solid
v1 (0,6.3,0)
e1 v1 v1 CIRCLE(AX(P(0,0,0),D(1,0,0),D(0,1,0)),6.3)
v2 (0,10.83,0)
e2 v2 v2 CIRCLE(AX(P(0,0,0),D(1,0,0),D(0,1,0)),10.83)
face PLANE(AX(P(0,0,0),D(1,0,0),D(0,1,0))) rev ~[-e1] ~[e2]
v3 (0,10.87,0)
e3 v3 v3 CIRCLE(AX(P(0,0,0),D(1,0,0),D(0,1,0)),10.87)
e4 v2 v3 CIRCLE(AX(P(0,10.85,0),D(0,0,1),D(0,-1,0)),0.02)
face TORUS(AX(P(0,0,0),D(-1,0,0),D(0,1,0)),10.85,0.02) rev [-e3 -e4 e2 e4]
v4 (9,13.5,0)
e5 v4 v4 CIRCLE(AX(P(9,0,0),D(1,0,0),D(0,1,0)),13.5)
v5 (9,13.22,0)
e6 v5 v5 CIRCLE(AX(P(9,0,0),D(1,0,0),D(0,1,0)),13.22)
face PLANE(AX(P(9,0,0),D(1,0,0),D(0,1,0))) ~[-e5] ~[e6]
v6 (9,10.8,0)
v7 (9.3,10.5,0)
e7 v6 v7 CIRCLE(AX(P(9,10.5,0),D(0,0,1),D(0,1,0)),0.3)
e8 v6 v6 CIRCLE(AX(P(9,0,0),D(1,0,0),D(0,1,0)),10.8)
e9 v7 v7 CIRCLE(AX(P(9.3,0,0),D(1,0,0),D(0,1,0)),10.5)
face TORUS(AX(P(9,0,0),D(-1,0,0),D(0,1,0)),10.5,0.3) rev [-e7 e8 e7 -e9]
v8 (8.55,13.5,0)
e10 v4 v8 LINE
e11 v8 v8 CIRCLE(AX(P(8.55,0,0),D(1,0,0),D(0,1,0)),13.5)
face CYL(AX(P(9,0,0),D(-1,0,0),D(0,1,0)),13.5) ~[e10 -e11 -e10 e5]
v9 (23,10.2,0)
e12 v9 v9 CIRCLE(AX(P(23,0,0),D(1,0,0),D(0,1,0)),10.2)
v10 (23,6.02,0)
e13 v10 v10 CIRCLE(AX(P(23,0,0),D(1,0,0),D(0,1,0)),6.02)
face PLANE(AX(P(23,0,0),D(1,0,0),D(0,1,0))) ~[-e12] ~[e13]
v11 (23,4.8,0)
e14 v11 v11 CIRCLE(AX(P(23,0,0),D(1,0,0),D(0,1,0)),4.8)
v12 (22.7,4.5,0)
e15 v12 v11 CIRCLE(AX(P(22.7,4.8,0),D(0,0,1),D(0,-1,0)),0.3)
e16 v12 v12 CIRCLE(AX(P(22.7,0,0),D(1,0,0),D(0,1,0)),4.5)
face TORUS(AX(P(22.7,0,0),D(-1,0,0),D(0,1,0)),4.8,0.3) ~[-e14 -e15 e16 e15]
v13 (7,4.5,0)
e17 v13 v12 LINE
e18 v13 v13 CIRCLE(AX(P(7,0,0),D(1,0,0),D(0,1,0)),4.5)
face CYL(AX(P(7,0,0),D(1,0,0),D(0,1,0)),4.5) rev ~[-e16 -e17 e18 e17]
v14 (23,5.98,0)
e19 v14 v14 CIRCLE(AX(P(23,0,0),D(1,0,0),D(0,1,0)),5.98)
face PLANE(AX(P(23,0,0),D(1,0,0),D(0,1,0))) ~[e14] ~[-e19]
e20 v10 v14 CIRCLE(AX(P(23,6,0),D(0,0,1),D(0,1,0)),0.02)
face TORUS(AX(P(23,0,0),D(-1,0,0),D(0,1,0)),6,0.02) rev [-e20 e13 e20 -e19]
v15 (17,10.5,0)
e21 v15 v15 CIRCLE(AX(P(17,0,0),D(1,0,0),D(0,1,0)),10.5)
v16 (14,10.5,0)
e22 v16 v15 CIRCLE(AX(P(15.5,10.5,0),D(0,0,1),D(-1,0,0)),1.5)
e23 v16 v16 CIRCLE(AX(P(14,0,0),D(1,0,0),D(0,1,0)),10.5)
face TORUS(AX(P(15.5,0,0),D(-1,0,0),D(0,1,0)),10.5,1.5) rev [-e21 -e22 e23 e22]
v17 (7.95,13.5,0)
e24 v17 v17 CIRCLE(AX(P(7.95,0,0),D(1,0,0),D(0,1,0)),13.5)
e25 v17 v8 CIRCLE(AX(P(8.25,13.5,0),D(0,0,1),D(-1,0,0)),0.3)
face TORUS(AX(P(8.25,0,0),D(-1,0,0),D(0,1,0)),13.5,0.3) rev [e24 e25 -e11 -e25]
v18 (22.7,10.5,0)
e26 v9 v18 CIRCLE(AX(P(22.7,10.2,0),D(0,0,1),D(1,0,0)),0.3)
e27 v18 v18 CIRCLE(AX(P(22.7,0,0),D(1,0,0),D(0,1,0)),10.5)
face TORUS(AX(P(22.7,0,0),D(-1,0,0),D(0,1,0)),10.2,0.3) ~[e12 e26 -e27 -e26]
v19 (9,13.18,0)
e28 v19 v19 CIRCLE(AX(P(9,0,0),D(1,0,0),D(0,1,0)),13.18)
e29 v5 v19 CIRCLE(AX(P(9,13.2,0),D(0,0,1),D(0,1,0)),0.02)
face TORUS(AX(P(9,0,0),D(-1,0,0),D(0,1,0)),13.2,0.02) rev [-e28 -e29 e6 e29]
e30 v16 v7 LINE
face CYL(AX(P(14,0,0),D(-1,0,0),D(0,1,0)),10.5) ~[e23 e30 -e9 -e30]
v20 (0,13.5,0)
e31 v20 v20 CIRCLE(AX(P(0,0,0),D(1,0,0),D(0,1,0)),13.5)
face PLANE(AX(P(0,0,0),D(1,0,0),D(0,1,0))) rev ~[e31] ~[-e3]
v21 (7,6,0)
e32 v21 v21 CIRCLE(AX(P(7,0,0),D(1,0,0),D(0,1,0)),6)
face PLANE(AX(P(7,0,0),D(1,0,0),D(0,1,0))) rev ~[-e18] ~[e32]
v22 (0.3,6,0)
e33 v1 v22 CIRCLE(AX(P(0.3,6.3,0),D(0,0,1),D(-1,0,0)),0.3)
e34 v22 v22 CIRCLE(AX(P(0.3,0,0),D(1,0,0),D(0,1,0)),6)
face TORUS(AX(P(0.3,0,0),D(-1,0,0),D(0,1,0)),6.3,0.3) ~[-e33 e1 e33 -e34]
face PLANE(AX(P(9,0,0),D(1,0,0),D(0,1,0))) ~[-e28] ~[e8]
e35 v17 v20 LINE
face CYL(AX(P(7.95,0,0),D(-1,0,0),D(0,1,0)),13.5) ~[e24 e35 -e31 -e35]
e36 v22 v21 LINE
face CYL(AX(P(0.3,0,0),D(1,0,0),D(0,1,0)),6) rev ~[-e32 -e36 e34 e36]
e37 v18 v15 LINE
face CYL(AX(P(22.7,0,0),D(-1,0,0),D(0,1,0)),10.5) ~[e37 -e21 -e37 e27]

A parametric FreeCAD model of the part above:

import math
import FreeCAD as App
import Part
import Sketcher
from FreeCAD import Vector

doc = App.newDocument("Part")
body = doc.addObject("PartDesign::Body", "Body")

# Sketch on XY plane
sketch1 = body.newObject("Sketcher::SketchObject", "Sketch")
sketch1.AttachmentSupport = (doc.getObject("XY_Plane"), [""])
sketch1.MapMode = "FlatFace"
sketch1.addGeometry(Part.LineSegment(Vector(7.95, 13.5, 0), Vector(0, 13.5, 0)), False)
sketch1.addGeometry(Part.LineSegment(Vector(0, 13.5, 0), Vector(0, 10.87, 0)), False)
sketch1.addGeometry(Part.ArcOfCircle(Part.Circle(Vector(0, 10.85, 0), Vector(0, 0, 1), 0.02), math.radians(-90), math.radians(90)), False)
sketch1.addGeometry(Part.LineSegment(Vector(0, 10.83, 0), Vector(0, 6.3, 0)), False)
sketch1.addGeometry(Part.ArcOfCircle(Part.Circle(Vector(0.3, 6.3, 0), Vector(0, 0, 1), 0.3), math.radians(180), math.radians(270)), False)
sketch1.addGeometry(Part.LineSegment(Vector(0.3, 6, 0), Vector(7, 6, 0)), False)
sketch1.addGeometry(Part.LineSegment(Vector(7, 6, 0), Vector(7, 4.5, 0)), False)
sketch1.addGeometry(Part.LineSegment(Vector(7, 4.5, 0), Vector(22.7, 4.5, 0)), False)
sketch1.addGeometry(Part.ArcOfCircle(Part.Circle(Vector(22.7, 4.8, 0), Vector(0, 0, 1), 0.3), math.radians(-90), math.radians(0)), False)
sketch1.addGeometry(Part.LineSegment(Vector(23, 4.8, 0), Vector(23, 5.98, 0)), False)
sketch1.addGeometry(Part.ArcOfCircle(Part.Circle(Vector(23, 6, 0), Vector(0, 0, 1), 0.02), math.radians(90), math.radians(270)), False)
sketch1.addGeometry(Part.LineSegment(Vector(23, 6.02, 0), Vector(23, 10.2, 0)), False)
sketch1.addGeometry(Part.ArcOfCircle(Part.Circle(Vector(22.7, 10.2, 0), Vector(0, 0, 1), 0.3), math.radians(0), math.radians(90)), False)
sketch1.addGeometry(Part.LineSegment(Vector(22.7, 10.5, 0), Vector(17, 10.5, 0)), False)
sketch1.addGeometry(Part.ArcOfCircle(Part.Circle(Vector(15.5, 10.5, 0), Vector(0, 0, 1), 1.5), math.radians(180), math.radians(360)), False)
sketch1.addGeometry(Part.LineSegment(Vector(14, 10.5, 0), Vector(9.3, 10.5, 0)), False)
sketch1.addGeometry(Part.ArcOfCircle(Part.Circle(Vector(9, 10.5, 0), Vector(0, 0, 1), 0.3), math.radians(90), math.radians(360)), False)
sketch1.addGeometry(Part.LineSegment(Vector(9, 10.8, 0), Vector(9, 13.18, 0)), False)
sketch1.addGeometry(Part.ArcOfCircle(Part.Circle(Vector(9, 13.2, 0), Vector(0, 0, 1), 0.02), math.radians(90), math.radians(270)), False)
sketch1.addGeometry(Part.LineSegment(Vector(9, 13.22, 0), Vector(9, 13.5, 0)), False)
sketch1.addGeometry(Part.LineSegment(Vector(9, 13.5, 0), Vector(8.55, 13.5, 0)), False)
sketch1.addGeometry(Part.ArcOfCircle(Part.Circle(Vector(8.25, 13.5, 0), Vector(0, 0, 1), 0.3), math.radians(180), math.radians(360)), False)
sketch1.addConstraint(Sketcher.Constraint("Coincident", 0, 2, 1, 1))
sketch1.addConstraint(Sketcher.Constraint("Coincident", 1, 2, 2, 2))
sketch1.addConstraint(Sketcher.Constraint("Coincident", 2, 1, 3, 1))
sketch1.addConstraint(Sketcher.Constraint("Tangent", 3, 2, 4, 1))
sketch1.addConstraint(Sketcher.Constraint("Tangent", 4, 2, 5, 1))
sketch1.addConstraint(Sketcher.Constraint("Coincident", 5, 2, 6, 1))
sketch1.addConstraint(Sketcher.Constraint("Coincident", 6, 2, 7, 1))
sketch1.addConstraint(Sketcher.Constraint("Tangent", 7, 2, 8, 1))
sketch1.addConstraint(Sketcher.Constraint("Tangent", 8, 2, 9, 1))
sketch1.addConstraint(Sketcher.Constraint("Coincident", 9, 2, 10, 2))
sketch1.addConstraint(Sketcher.Constraint("Coincident", 10, 1, 11, 1))
sketch1.addConstraint(Sketcher.Constraint("Tangent", 11, 2, 12, 1))
sketch1.addConstraint(Sketcher.Constraint("Tangent", 12, 2, 13, 1))
sketch1.addConstraint(Sketcher.Constraint("Coincident", 13, 2, 14, 2))
sketch1.addConstraint(Sketcher.Constraint("Coincident", 14, 1, 15, 1))
sketch1.addConstraint(Sketcher.Constraint("Coincident", 15, 2, 16, 2))
sketch1.addConstraint(Sketcher.Constraint("Coincident", 16, 1, 17, 1))
sketch1.addConstraint(Sketcher.Constraint("Coincident", 17, 2, 18, 2))
sketch1.addConstraint(Sketcher.Constraint("Coincident", 18, 1, 19, 1))
sketch1.addConstraint(Sketcher.Constraint("Coincident", 19, 2, 20, 1))
sketch1.addConstraint(Sketcher.Constraint("Coincident", 20, 2, 21, 2))
sketch1.addConstraint(Sketcher.Constraint("Coincident", 21, 1, 0, 1))
sketch1.addConstraint(Sketcher.Constraint("Horizontal", 0))
sketch1.addConstraint(Sketcher.Constraint("Vertical", 1))
sketch1.addConstraint(Sketcher.Constraint("Vertical", 3))
sketch1.addConstraint(Sketcher.Constraint("Horizontal", 5))
sketch1.addConstraint(Sketcher.Constraint("Vertical", 6))
sketch1.addConstraint(Sketcher.Constraint("Horizontal", 7))
sketch1.addConstraint(Sketcher.Constraint("Vertical", 9))
sketch1.addConstraint(Sketcher.Constraint("Vertical", 11))
sketch1.addConstraint(Sketcher.Constraint("Horizontal", 13))
sketch1.addConstraint(Sketcher.Constraint("Horizontal", 15))
sketch1.addConstraint(Sketcher.Constraint("Vertical", 17))
sketch1.addConstraint(Sketcher.Constraint("Vertical", 19))
sketch1.addConstraint(Sketcher.Constraint("Horizontal", 20))
sketch1.addConstraint(Sketcher.Constraint("Equal", 4, 8))
sketch1.addConstraint(Sketcher.Constraint("Equal", 2, 10))
sketch1.addConstraint(Sketcher.Constraint("Equal", 8, 12))
sketch1.addConstraint(Sketcher.Constraint("Equal", 12, 16))
sketch1.addConstraint(Sketcher.Constraint("Equal", 10, 18))
sketch1.addConstraint(Sketcher.Constraint("Equal", 16, 21))
sketch1.addConstraint(Sketcher.Constraint("PointOnObject", 2, 3, -2))
sketch1.addConstraint(Sketcher.Constraint("PointOnObject", 0, 2, -2))
sketch1.addConstraint(Sketcher.Constraint("PointOnObject", 2, 1, -2))
sketch1.addConstraint(Sketcher.Constraint("Horizontal", 14, 3, 16, 3))
sketch1.addConstraint(Sketcher.Constraint("Horizontal", 21, 3, 0, 2))
sketch1.addConstraint(Sketcher.Constraint("Horizontal", 10, 3, 4, 2))
sketch1.addConstraint(Sketcher.Constraint("Horizontal", 16, 3, 12, 2))
sketch1.addConstraint(Sketcher.Constraint("Horizontal", 13, 2, 14, 1))
sketch1.addConstraint(Sketcher.Constraint("Horizontal", 0, 2, 19, 2))
sketch1.addConstraint(Sketcher.Constraint("Vertical", 8, 3, 12, 3))
sketch1.addConstraint(Sketcher.Constraint("Vertical", 16, 3, 18, 3))
sketch1.addConstraint(Sketcher.Constraint("Vertical", 10, 3, 8, 2))
sketch1.addConstraint(Sketcher.Constraint("Vertical", 18, 3, 16, 1))
sketch1.addConstraint(Sketcher.Constraint("Vertical", 17, 2, 18, 1))
sketch1.addConstraint(Sketcher.Constraint("Radius", 4, 0.3))
sketch1.addConstraint(Sketcher.Constraint("Radius", 14, 1.5))
sketch1.addConstraint(Sketcher.Constraint("Radius", 2, 0.02))
sketch1.addConstraint(Sketcher.Constraint("DistanceX", 5, 1, 5, 2, 6.7))
sketch1.addConstraint(Sketcher.Constraint("DistanceX", 7, 1, 7, 2, 15.7))
sketch1.addConstraint(Sketcher.Constraint("DistanceX", 13, 2, 13, 1, 5.7))
sketch1.addConstraint(Sketcher.Constraint("DistanceX", 15, 2, 15, 1, 4.7))
sketch1.addConstraint(Sketcher.Constraint("DistanceY", 6, 2, 6, 1, 1.5))
sketch1.addConstraint(Sketcher.Constraint("DistanceY", -1, 1, 10, 3, 6.0))
sketch1.addConstraint(Sketcher.Constraint("DistanceY", 12, 3, 18, 3, 3.0))
sketch1.addConstraint(Sketcher.Constraint("DistanceY", 16, 3, 21, 3, 3.0))
sketch1.addConstraint(Sketcher.Constraint("DistanceY", 6, 2, 16, 3, 6.0))
sketch1.addConstraint(Sketcher.Constraint("DistanceX", 0, 2, 0, 1, 7.95))
sketch1.addConstraint(Sketcher.Constraint("DistanceY", 1, 2, 1, 1, 2.63))
revolution = body.newObject("PartDesign::Revolution", "Revolution")
revolution.Profile = sketch1
revolution.ReferenceAxis = (sketch1, ["H_Axis"])
revolution.Angle = 360

doc.recompute()
